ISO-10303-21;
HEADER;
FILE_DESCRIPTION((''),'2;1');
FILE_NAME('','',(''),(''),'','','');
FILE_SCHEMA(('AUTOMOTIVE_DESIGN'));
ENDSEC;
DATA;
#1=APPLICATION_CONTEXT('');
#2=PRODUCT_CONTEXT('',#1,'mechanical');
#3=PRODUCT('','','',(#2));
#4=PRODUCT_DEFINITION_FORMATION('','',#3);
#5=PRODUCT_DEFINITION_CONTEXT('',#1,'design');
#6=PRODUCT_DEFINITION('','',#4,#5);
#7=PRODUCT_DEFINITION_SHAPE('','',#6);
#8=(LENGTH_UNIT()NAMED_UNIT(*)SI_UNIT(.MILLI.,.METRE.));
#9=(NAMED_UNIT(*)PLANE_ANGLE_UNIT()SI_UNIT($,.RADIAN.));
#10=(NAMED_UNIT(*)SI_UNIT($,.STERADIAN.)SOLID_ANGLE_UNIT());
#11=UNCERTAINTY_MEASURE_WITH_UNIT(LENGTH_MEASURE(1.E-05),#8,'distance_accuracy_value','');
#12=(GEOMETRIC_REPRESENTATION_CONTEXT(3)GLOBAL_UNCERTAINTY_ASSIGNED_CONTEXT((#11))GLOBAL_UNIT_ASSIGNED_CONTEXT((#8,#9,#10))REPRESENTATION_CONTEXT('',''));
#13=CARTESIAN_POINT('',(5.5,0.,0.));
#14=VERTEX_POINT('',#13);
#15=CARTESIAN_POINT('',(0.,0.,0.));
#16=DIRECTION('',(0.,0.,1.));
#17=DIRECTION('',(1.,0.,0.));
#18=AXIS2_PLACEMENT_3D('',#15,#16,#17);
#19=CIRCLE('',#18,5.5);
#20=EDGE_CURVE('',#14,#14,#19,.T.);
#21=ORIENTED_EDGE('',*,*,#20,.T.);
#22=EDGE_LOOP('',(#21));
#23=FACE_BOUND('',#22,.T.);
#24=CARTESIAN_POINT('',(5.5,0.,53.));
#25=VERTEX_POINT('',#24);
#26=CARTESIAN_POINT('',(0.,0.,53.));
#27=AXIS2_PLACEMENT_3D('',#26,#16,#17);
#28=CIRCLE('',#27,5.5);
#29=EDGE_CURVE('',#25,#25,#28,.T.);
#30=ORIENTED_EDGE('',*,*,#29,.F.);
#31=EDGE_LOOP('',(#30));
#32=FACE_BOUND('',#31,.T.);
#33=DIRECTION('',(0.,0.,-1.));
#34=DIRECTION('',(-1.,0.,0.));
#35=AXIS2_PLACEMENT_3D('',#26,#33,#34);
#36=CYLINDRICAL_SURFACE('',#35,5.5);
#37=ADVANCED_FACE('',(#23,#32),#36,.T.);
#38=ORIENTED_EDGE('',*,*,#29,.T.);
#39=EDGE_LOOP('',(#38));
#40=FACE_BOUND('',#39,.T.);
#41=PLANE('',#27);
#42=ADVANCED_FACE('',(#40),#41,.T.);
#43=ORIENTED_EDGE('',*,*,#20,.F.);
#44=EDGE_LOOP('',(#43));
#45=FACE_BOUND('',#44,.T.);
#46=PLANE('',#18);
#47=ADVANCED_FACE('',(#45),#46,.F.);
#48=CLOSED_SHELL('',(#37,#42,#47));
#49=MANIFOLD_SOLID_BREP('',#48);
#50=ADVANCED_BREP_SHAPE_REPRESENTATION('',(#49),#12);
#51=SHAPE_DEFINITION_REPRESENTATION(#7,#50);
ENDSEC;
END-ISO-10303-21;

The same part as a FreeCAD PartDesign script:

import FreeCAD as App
import Part
import Sketcher

doc = App.newDocument("Part")
body = doc.addObject("PartDesign::Body", "Body")

# Sketch on XY plane
sketch1 = body.newObject("Sketcher::SketchObject", "Sketch")
sketch1.AttachmentSupport = (doc.getObject("XY_Plane"), [""])
sketch1.MapMode = "FlatFace"
sketch1.addGeometry(Part.Circle(App.Vector(0, 0, 0), App.Vector(0, 0, 1), 6), False)
sketch1.addConstraint([
    Sketcher.Constraint("Coincident", 0, 3, -1, 1),
    Sketcher.Constraint("Diameter", 0, 11.0),
])
pad1 = body.newObject("PartDesign::Pad", "Pad")
pad1.Profile = sketch1
pad1.Length = 53

doc.recompute()
